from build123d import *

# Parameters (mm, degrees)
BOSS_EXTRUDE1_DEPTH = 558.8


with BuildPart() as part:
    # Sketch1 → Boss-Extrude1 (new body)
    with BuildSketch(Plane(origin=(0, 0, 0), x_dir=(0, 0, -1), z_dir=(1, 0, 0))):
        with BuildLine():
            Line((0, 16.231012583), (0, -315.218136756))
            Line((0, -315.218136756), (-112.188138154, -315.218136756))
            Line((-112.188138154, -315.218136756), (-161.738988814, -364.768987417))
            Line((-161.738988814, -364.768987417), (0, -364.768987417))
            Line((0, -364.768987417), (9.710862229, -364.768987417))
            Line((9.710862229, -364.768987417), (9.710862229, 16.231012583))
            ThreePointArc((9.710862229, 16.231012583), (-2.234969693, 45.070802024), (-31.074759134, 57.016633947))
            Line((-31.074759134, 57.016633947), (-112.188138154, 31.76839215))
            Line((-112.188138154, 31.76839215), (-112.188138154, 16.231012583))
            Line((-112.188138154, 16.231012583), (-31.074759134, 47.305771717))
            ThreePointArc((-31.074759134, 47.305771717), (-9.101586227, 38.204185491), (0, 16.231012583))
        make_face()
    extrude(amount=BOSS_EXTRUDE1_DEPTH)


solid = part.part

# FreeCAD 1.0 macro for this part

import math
import FreeCAD as App
import Part
import Sketcher

V = App.Vector
Q = App.Units.Quantity

doc = App.newDocument("Part")
body = doc.addObject("PartDesign::Body", "Body")

# Sketch on YZ plane
sketch1 = doc.addObject("Sketcher::SketchObject", "Sketch")
body.addObject(sketch1)
sketch1.AttachmentSupport = (doc.YZ_Plane, [""])
sketch1.MapMode = "FlatFace"
sketch1.addGeometry(Part.LineSegment(V(16, 0, 0), V(-315, 0, 0)), False)
sketch1.addGeometry(Part.LineSegment(V(-315, 0, 0), V(-315, 112, 0)), False)
sketch1.addGeometry(Part.LineSegment(V(-315, 112, 0), V(-365, 162, 0)), False)
sketch1.addGeometry(Part.LineSegment(V(-365, 162, 0), V(-365, -10, 0)), False)
sketch1.addGeometry(Part.LineSegment(V(-365, -10, 0), V(16, -10, 0)), False)
sketch1.addGeometry(Part.ArcOfCircle(Part.Circle(V(16, 31, 0), V(0, 0, 1), 41), math.radians(-90), math.radians(0)), False)
sketch1.addGeometry(Part.LineSegment(V(57, 31, 0), V(32, 112, 0)), False)
sketch1.addGeometry(Part.LineSegment(V(32, 112, 0), V(16, 112, 0)), False)
sketch1.addGeometry(Part.LineSegment(V(16, 112, 0), V(47, 31, 0)), False)
sketch1.addGeometry(Part.ArcOfCircle(Part.Circle(V(16, 31, 0), V(0, 0, 1), 31), math.radians(-90), math.radians(0)), False)
sketch1.addConstraint(Sketcher.Constraint("Coincident", 0, 2, 1, 1))
sketch1.addConstraint(Sketcher.Constraint("Coincident", 1, 2, 2, 1))
sketch1.addConstraint(Sketcher.Constraint("Coincident", 2, 2, 3, 1))
sketch1.addConstraint(Sketcher.Constraint("Coincident", 3, 2, 4, 1))
sketch1.addConstraint(Sketcher.Constraint("Tangent", 4, 2, 5, 1))
sketch1.addConstraint(Sketcher.Constraint("Coincident", 5, 2, 6, 1))
sketch1.addConstraint(Sketcher.Constraint("Coincident", 6, 2, 7, 1))
sketch1.addConstraint(Sketcher.Constraint("Coincident", 7, 2, 8, 1))
sketch1.addConstraint(Sketcher.Constraint("Coincident", 8, 2, 9, 2))
sketch1.addConstraint(Sketcher.Constraint("Tangent", 9, 1, 0, 1))
sketch1.addConstraint(Sketcher.Constraint("Horizontal", 0))
sketch1.addConstraint(Sketcher.Constraint("Vertical", 1))
sketch1.addConstraint(Sketcher.Constraint("Vertical", 3))
sketch1.addConstraint(Sketcher.Constraint("Horizontal", 4))
sketch1.addConstraint(Sketcher.Constraint("Horizontal", 7))
sketch1.addConstraint(Sketcher.Constraint("Coincident", 9, 3, 5, 3))
sketch1.addConstraint(Sketcher.Constraint("PointOnObject", 0, 2, -1))
sketch1.addConstraint(Sketcher.Constraint("Horizontal", 9, 3, 5, 2))
sketch1.addConstraint(Sketcher.Constraint("Horizontal", 1, 2, 6, 2))
sketch1.addConstraint(Sketcher.Constraint("Horizontal", 5, 2, 8, 2))
sketch1.addConstraint(Sketcher.Constraint("Vertical", 4, 2, 7, 2))
sketch1.addConstraint(Sketcher.Constraint("DistanceX", 4, 1, 4, 2, Q("15 in")))
sketch1.addConstraint(Sketcher.Constraint("Angle", 2, Q("135 deg")))
sketch1.addConstraint(Sketcher.Constraint("Radius", 5, 40.785621))
sketch1.addConstraint(Sketcher.Constraint("Radius", 9, 31.074759))
sketch1.addConstraint(Sketcher.Constraint("DistanceX", 0, 2, 0, 1, 331.449149))
sketch1.addConstraint(Sketcher.Constraint("DistanceX", 7, 2, 7, 1, 15.53738))
sketch1.addConstraint(Sketcher.Constraint("DistanceY", 1, 1, 1, 2, 112.188138))
sketch1.addConstraint(Sketcher.Constraint("DistanceX", -1, 1, 8, 2, 47.305772))
pad1 = doc.addObject("PartDesign::Pad", "Pad")
body.addObject(pad1)
pad1.Profile = sketch1
pad1.Length = Q("22 in")

doc.recompute()
